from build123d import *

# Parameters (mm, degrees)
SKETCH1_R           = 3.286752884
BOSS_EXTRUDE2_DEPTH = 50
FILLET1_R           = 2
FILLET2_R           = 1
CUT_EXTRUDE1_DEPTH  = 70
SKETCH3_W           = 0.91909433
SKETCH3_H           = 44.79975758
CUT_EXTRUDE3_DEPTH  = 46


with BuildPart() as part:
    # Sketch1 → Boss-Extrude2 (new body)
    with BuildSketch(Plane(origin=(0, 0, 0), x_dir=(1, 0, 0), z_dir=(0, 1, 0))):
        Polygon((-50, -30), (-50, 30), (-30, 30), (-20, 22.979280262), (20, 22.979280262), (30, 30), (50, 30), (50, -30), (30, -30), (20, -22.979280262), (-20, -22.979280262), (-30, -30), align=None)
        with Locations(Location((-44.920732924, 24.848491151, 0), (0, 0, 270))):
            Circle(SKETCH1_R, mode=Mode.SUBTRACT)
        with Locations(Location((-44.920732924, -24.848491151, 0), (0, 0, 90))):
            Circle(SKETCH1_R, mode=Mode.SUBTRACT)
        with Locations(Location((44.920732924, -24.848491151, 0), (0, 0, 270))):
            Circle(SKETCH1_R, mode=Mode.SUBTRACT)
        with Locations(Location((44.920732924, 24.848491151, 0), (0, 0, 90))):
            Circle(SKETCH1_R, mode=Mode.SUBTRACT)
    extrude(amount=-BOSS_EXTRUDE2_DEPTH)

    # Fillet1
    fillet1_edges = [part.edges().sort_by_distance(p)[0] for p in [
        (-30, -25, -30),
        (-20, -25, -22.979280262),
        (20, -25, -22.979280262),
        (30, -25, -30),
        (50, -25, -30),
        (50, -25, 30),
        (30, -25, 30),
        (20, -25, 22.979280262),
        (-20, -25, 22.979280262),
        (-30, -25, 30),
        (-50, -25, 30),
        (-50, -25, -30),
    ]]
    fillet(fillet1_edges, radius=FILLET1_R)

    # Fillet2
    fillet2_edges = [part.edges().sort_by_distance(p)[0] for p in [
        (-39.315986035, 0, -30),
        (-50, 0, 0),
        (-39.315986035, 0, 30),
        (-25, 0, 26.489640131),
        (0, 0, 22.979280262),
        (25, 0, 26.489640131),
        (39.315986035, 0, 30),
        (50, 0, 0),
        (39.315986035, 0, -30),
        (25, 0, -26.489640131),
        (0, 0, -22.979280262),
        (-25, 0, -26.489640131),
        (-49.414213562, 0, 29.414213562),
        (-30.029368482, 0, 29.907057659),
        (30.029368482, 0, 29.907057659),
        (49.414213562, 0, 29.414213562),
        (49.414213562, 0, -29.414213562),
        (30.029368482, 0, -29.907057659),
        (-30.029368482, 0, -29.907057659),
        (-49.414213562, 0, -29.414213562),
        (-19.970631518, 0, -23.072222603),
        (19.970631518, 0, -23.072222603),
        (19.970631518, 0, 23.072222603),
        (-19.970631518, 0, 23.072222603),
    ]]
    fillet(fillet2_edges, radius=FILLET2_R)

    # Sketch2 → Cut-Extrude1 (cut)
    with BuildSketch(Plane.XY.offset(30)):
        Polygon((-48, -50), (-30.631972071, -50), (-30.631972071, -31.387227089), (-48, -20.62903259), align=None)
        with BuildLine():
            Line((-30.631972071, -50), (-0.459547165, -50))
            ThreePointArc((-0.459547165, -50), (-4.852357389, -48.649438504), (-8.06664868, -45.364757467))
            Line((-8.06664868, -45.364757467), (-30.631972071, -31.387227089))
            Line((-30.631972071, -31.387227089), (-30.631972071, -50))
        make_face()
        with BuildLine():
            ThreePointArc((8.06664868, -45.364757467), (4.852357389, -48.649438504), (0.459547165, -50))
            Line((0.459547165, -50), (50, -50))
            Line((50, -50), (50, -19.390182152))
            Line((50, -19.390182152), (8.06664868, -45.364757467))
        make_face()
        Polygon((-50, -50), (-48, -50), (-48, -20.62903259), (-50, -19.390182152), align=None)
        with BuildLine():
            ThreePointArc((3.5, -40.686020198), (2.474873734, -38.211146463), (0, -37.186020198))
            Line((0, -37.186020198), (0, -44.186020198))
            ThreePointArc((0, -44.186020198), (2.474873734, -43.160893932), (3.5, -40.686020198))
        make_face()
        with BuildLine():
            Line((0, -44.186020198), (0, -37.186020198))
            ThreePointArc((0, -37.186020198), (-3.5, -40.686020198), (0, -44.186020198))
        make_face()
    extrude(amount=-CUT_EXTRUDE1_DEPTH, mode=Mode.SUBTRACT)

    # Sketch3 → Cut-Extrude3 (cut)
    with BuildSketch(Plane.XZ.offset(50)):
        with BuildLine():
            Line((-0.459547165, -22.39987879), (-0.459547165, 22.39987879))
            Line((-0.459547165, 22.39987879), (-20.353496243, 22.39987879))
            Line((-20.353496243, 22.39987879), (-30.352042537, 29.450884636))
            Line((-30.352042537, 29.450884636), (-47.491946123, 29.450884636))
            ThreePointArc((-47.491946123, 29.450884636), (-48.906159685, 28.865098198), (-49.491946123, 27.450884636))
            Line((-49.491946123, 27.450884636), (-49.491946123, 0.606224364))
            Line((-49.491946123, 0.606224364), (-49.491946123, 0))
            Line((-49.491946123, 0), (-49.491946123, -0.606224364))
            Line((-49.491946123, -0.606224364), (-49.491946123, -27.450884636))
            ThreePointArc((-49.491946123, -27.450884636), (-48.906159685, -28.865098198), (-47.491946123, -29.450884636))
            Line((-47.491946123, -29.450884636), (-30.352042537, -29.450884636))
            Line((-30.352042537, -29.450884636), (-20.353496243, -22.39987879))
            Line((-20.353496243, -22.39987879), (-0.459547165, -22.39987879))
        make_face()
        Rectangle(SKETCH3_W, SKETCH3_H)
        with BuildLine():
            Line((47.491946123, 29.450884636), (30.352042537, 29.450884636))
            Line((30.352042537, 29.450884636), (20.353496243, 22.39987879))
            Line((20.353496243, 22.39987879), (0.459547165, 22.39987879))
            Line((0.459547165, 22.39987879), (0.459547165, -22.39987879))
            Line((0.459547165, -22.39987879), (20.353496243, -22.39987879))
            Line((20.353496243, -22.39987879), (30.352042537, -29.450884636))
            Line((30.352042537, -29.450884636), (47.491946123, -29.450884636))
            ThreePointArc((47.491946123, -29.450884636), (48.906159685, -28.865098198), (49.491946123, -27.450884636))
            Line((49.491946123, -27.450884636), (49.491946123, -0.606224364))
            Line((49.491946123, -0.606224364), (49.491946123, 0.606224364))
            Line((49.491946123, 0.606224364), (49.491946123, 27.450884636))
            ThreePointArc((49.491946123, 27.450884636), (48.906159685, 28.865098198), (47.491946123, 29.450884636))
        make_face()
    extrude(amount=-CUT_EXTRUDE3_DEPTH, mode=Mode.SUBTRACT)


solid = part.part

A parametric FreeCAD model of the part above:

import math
import FreeCAD as App
import Part
import Sketcher

V = App.Vector


def edges_at(feature, points):
    """Names of the edges that pass closest to the given points."""
    edges = feature.Shape.Edges
    near = lambda p: min(range(len(edges)), key=lambda i: edges[i].distToShape(Part.Vertex(*p))[0])
    return sorted({f"Edge{near(p) + 1}" for p in points})

doc = App.newDocument("Part")
body = doc.addObject("PartDesign::Body", "Body")

sketch1 = doc.addObject("Sketcher::SketchObject", "Sketch")
body.addObject(sketch1)
sketch1.AttachmentSupport = (doc.XZ_Plane, [""])
sketch1.MapMode = "FlatFace"
sketch1.addGeometry([
    Part.LineSegment(V(-50, -30, 0), V(-50, 30, 0)),
    Part.LineSegment(V(-50, 30, 0), V(-30, 30, 0)),
    Part.LineSegment(V(-30, 30, 0), V(-20, 23, 0)),
    Part.LineSegment(V(-20, 23, 0), V(20, 23, 0)),
    Part.LineSegment(V(20, 23, 0), V(30, 30, 0)),
    Part.LineSegment(V(30, 30, 0), V(50, 30, 0)),
    Part.LineSegment(V(50, 30, 0), V(50, -30, 0)),
    Part.LineSegment(V(50, -30, 0), V(30, -30, 0)),
    Part.LineSegment(V(30, -30, 0), V(20, -23, 0)),
    Part.LineSegment(V(20, -23, 0), V(-20, -23, 0)),
    Part.LineSegment(V(-20, -23, 0), V(-30, -30, 0)),
    Part.LineSegment(V(-30, -30, 0), V(-50, -30, 0)),
    Part.Circle(V(44.9, 24.8, 0), V(0, 0, 1), 3.3),
    Part.Circle(V(-44.9, 24.8, 0), V(0, 0, 1), 3.3),
    Part.Circle(V(44.9, -24.8, 0), V(0, 0, 1), 3.3),
    Part.Circle(V(-44.9, -24.8, 0), V(0, 0, 1), 3.3),
], False)
sketch1.addConstraint([
    Sketcher.Constraint("Coincident", 0, 2, 1, 1),
    Sketcher.Constraint("Coincident", 1, 2, 2, 1),
    Sketcher.Constraint("Coincident", 2, 2, 3, 1),
    Sketcher.Constraint("Coincident", 3, 2, 4, 1),
    Sketcher.Constraint("Coincident", 4, 2, 5, 1),
    Sketcher.Constraint("Coincident", 5, 2, 6, 1),
    Sketcher.Constraint("Coincident", 6, 2, 7, 1),
    Sketcher.Constraint("Coincident", 7, 2, 8, 1),
    Sketcher.Constraint("Coincident", 8, 2, 9, 1),
    Sketcher.Constraint("Coincident", 9, 2, 10, 1),
    Sketcher.Constraint("Coincident", 10, 2, 11, 1),
    Sketcher.Constraint("Coincident", 11, 2, 0, 1),
    Sketcher.Constraint("Vertical", 0),
    Sketcher.Constraint("Horizontal", 1),
    Sketcher.Constraint("Horizontal", 3),
    Sketcher.Constraint("Horizontal", 5),
    Sketcher.Constraint("Vertical", 6),
    Sketcher.Constraint("Horizontal", 7),
    Sketcher.Constraint("Horizontal", 9),
    Sketcher.Constraint("Horizontal", 11),
    Sketcher.Constraint("Equal", 12, 13),
    Sketcher.Constraint("Equal", 13, 14),
    Sketcher.Constraint("Equal", 14, 15),
    Sketcher.Constraint("Symmetric", 13, 3, 14, 3, -1, 1),
    Sketcher.Constraint("Symmetric", 12, 3, 15, 3, -1, 1),
    Sketcher.Constraint("Symmetric", 0, 2, 6, 2, -1, 1),
    Sketcher.Constraint("Symmetric", 2, 2, 8, 2, -1, 1),
    Sketcher.Constraint("Symmetric", 4, 2, 10, 2, -1, 1),
    Sketcher.Constraint("Symmetric", 12, 3, 13, 3, -2),
    Sketcher.Constraint("Symmetric", 1, 2, 4, 2, -2),
    Sketcher.Constraint("Parallel", 2, 8),
    Sketcher.Constraint("Parallel", 4, 10),
    Sketcher.Constraint("Vertical", 3, 2, 8, 2),
    Sketcher.Constraint("DistanceX", 1, 1, 1, 2, 20.0),
    Sketcher.Constraint("DistanceX", 3, 1, 3, 2, 40.0),
    Sketcher.Constraint("DistanceY", 0, 1, 0, 2, 60.0),
    Sketcher.Constraint("DistanceX", 0, 2, -1, 1, 50.0),
    Sketcher.Constraint("Diameter", 12, 6.573506),
    Sketcher.Constraint("Distance", 2, 12.218449),
    Sketcher.Constraint("DistanceY", -1, 1, 12, 3, 24.848491),
    Sketcher.Constraint("DistanceX", -1, 1, 12, 3, 44.920733),
])
pad1 = doc.addObject("PartDesign::Pad", "Pad")
body.addObject(pad1)
pad1.Profile = sketch1
pad1.Length = 50
doc.recompute()

fillet = doc.addObject("PartDesign::Fillet", "Fillet")
body.addObject(fillet)
fillet.Base = (pad1, edges_at(pad1, [
    (-30, -25, -30),
    (-20, -25, -22.979),
    (20, -25, -22.979),
    (30, -25, -30),
    (50, -25, -30),
    (50, -25, 30),
    (30, -25, 30),
    (20, -25, 22.979),
    (-20, -25, 22.979),
    (-30, -25, 30),
    (-50, -25, 30),
    (-50, -25, -30),
]))
fillet.Radius = 2
doc.recompute()

fillet2 = doc.addObject("PartDesign::Fillet", "Fillet001")
body.addObject(fillet2)
fillet2.Base = (fillet, edges_at(fillet, [
    (-39.316, 0, -30),
    (-50, 0, 0),
    (-39.316, 0, 30),
    (-25, 0, 26.49),
    (0, 0, 22.979),
    (25, 0, 26.49),
    (39.316, 0, 30),
    (50, 0, 0),
    (39.316, 0, -30),
    (25, 0, -26.49),
    (0, 0, -22.979),
    (-25, 0, -26.49),
    (-49.414, 0, 29.414),
    (-30.029, 0, 29.907),
    (30.029, 0, 29.907),
    (49.414, 0, 29.414),
    (49.414, 0, -29.414),
    (30.029, 0, -29.907),
    (-30.029, 0, -29.907),
    (-49.414, 0, -29.414),
    (-19.971, 0, -23.072),
    (19.971, 0, -23.072),
    (19.971, 0, 23.072),
    (-19.971, 0, 23.072),
]))
fillet2.Radius = 1

sketch2 = doc.addObject("Sketcher::SketchObject", "Sketch001")
body.addObject(sketch2)
sketch2.AttachmentSupport = (doc.XY_Plane, [""])
sketch2.MapMode = "FlatFace"
sketch2.AttachmentOffset = App.Placement(V(0, 0, 30), App.Rotation())
sketch2.addGeometry([
    Part.ArcOfCircle(Part.Circle(V(0, -40.7, 0), V(0, 0, 1), 9.3), math.radians(-150), math.radians(-93)),
    Part.LineSegment(V(-8.1, -45.4, 0), V(-30.6, -31.4, 0)),
    Part.LineSegment(V(-30.6, -31.4, 0), V(-48, -20.6, 0)),
    Part.LineSegment(V(-48, -20.6, 0), V(-50, -19.4, 0)),
    Part.LineSegment(V(-50, -19.4, 0), V(-50, -50, 0)),
    Part.LineSegment(V(-50, -50, 0), V(-0.5, -50, 0)),
    Part.ArcOfCircle(Part.Circle(V(0, -40.7, 0), V(0, 0, 1), 9.3), math.radians(-87), math.radians(-30)),
    Part.LineSegment(V(0.5, -50, 0), V(50, -50, 0)),
    Part.LineSegment(V(50, -50, 0), V(50, -19.4, 0)),
    Part.LineSegment(V(50, -19.4, 0), V(8.1, -45.4, 0)),
    Part.ArcOfCircle(Part.Circle(V(0, -40.7, 0), V(0, 0, 1), 3.5), math.radians(0), math.radians(90)),
    Part.ArcOfCircle(Part.Circle(V(0, -40.7, 0), V(0, 0, 1), 3.5), math.radians(90), math.radians(270)),
    Part.ArcOfCircle(Part.Circle(V(0, -40.7, 0), V(0, 0, 1), 3.5), math.radians(-90), math.radians(0)),
], False)
sketch2.addConstraint([
    Sketcher.Constraint("Coincident", 0, 1, 1, 1),
    Sketcher.Constraint("Coincident", 1, 2, 2, 1),
    Sketcher.Constraint("Coincident", 2, 2, 3, 1),
    Sketcher.Constraint("Coincident", 3, 2, 4, 1),
    Sketcher.Constraint("Coincident", 4, 2, 5, 1),
    Sketcher.Constraint("Coincident", 5, 2, 0, 2),
    Sketcher.Constraint("Coincident", 6, 1, 7, 1),
    Sketcher.Constraint("Coincident", 7, 2, 8, 1),
    Sketcher.Constraint("Coincident", 8, 2, 9, 1),
    Sketcher.Constraint("Coincident", 9, 2, 6, 2),
    Sketcher.Constraint("Tangent", 10, 2, 11, 1),
    Sketcher.Constraint("Tangent", 11, 2, 12, 1),
    Sketcher.Constraint("Tangent", 12, 2, 10, 1),
    Sketcher.Constraint("Vertical", 4),
    Sketcher.Constraint("Horizontal", 5),
    Sketcher.Constraint("Horizontal", 7),
    Sketcher.Constraint("Vertical", 8),
    Sketcher.Constraint("Coincident", 6, 3, 0, 3),
    Sketcher.Constraint("Coincident", 10, 3, 0, 3),
    Sketcher.Constraint("Equal", 0, 6),
    Sketcher.Constraint("Symmetric", 5, 2, 6, 1, -2),
    Sketcher.Constraint("Symmetric", 3, 2, 8, 2, -2),
    Sketcher.Constraint("PointOnObject", 10, 2, -2),
    Sketcher.Constraint("PointOnObject", 11, 2, -2),
    Sketcher.Constraint("Parallel", 1, 2),
    Sketcher.Constraint("Parallel", 2, 3),
    Sketcher.Constraint("Horizontal", 0, 1, 9, 2),
    Sketcher.Constraint("Horizontal", 11, 3, 12, 2),
    Sketcher.Constraint("Radius", 10, 3.5),
    Sketcher.Constraint("DistanceX", 2, 2, -1, 1, 48.0),
    Sketcher.Constraint("DistanceX", 3, 2, -1, 1, 50.0),
    Sketcher.Constraint("DistanceY", 4, 2, -1, 1, 50.0),
    Sketcher.Constraint("Radius", 0, 9.32531),
    Sketcher.Constraint("DistanceX", 0, 1, 5, 2, 7.607102),
    Sketcher.Constraint("DistanceX", 5, 1, 5, 2, 49.540453),
    Sketcher.Constraint("DistanceY", 4, 2, 4, 1, 30.609818),
    Sketcher.Constraint("DistanceY", 0, 1, 1, 2, 13.97753),
])
pocket1 = doc.addObject("PartDesign::Pocket", "Pocket")
body.addObject(pocket1)
pocket1.Profile = sketch2
pocket1.Length = 70

sketch3 = doc.addObject("Sketcher::SketchObject", "Sketch002")
body.addObject(sketch3)
sketch3.AttachmentSupport = (doc.XZ_Plane, [""])
sketch3.MapMode = "FlatFace"
sketch3.AttachmentOffset = App.Placement(V(0, 0, 50), App.Rotation())
sketch3.addGeometry([
    Part.LineSegment(V(-20.4, 22.4, 0), V(-30.4, 29.5, 0)),
    Part.LineSegment(V(-30.4, 29.5, 0), V(-47.5, 29.5, 0)),
    Part.ArcOfCircle(Part.Circle(V(-47.5, 27.5, 0), V(0, 0, 1), 2), math.radians(90), math.radians(180)),
    Part.LineSegment(V(-49.5, 27.5, 0), V(-49.5, -27.5, 0)),
    Part.ArcOfCircle(Part.Circle(V(-47.5, -27.5, 0), V(0, 0, 1), 2), math.radians(-180), math.radians(-90)),
    Part.LineSegment(V(-47.5, -29.5, 0), V(-30.4, -29.5, 0)),
    Part.LineSegment(V(-30.4, -29.5, 0), V(-20.4, -22.4, 0)),
    Part.LineSegment(V(-20.4, -22.4, 0), V(20.4, -22.4, 0)),
    Part.LineSegment(V(20.4, -22.4, 0), V(30.4, -29.5, 0)),
    Part.LineSegment(V(30.4, -29.5, 0), V(47.5, -29.5, 0)),
    Part.ArcOfCircle(Part.Circle(V(47.5, -27.5, 0), V(0, 0, 1), 2), math.radians(-90), math.radians(0)),
    Part.LineSegment(V(49.5, -27.5, 0), V(49.5, 27.5, 0)),
    Part.ArcOfCircle(Part.Circle(V(47.5, 27.5, 0), V(0, 0, 1), 2), math.radians(0), math.radians(90)),
    Part.LineSegment(V(47.5, 29.5, 0), V(30.4, 29.5, 0)),
    Part.LineSegment(V(30.4, 29.5, 0), V(20.4, 22.4, 0)),
    Part.LineSegment(V(20.4, 22.4, 0), V(-20.4, 22.4, 0)),
], False)
sketch3.addConstraint([
    Sketcher.Constraint("Coincident", 0, 2, 1, 1),
    Sketcher.Constraint("Tangent", 1, 2, 2, 1),
    Sketcher.Constraint("Tangent", 2, 2, 3, 1),
    Sketcher.Constraint("Tangent", 3, 2, 4, 1),
    Sketcher.Constraint("Tangent", 4, 2, 5, 1),
    Sketcher.Constraint("Coincident", 5, 2, 6, 1),
    Sketcher.Constraint("Coincident", 6, 2, 7, 1),
    Sketcher.Constraint("Coincident", 7, 2, 8, 1),
    Sketcher.Constraint("Coincident", 8, 2, 9, 1),
    Sketcher.Constraint("Tangent", 9, 2, 10, 1),
    Sketcher.Constraint("Tangent", 10, 2, 11, 1),
    Sketcher.Constraint("Tangent", 11, 2, 12, 1),
    Sketcher.Constraint("Tangent", 12, 2, 13, 1),
    Sketcher.Constraint("Coincident", 13, 2, 14, 1),
    Sketcher.Constraint("Coincident", 14, 2, 15, 1),
    Sketcher.Constraint("Coincident", 15, 2, 0, 1),
    Sketcher.Constraint("Horizontal", 1),
    Sketcher.Constraint("Vertical", 3),
    Sketcher.Constraint("Horizontal", 5),
    Sketcher.Constraint("Horizontal", 7),
    Sketcher.Constraint("Horizontal", 9),
    Sketcher.Constraint("Vertical", 11),
    Sketcher.Constraint("Horizontal", 13),
    Sketcher.Constraint("Horizontal", 15),
    Sketcher.Constraint("Equal", 2, 4),
    Sketcher.Constraint("Equal", 4, 10),
    Sketcher.Constraint("Equal", 10, 12),
    Sketcher.Constraint("Symmetric", 2, 3, 10, 3, -1, 1),
    Sketcher.Constraint("Symmetric", 5, 2, 13, 2, -1, 1),
    Sketcher.Constraint("Symmetric", 6, 2, 14, 2, -1, 1),
    Sketcher.Constraint("Symmetric", 5, 2, 8, 2, -2),
    Sketcher.Constraint("Parallel", 0, 8),
    Sketcher.Constraint("Vertical", 0, 2, 5, 2),
    Sketcher.Constraint("Vertical", 7, 2, 14, 2),
    Sketcher.Constraint("Radius", 2, 2.0),
    Sketcher.Constraint("DistanceY", 3, 2, 3, 1, 54.901769),
    Sketcher.Constraint("Distance", 0, 12.234689),
    Sketcher.Constraint("DistanceX", 1, 2, 1, 1, 17.139904),
    Sketcher.Constraint("DistanceX", 7, 1, 7, 2, 40.706992),
    Sketcher.Constraint("DistanceY", 6, 2, -1, 1, 22.399879),
])
pocket2 = doc.addObject("PartDesign::Pocket", "Pocket001")
body.addObject(pocket2)
pocket2.Profile = sketch3
pocket2.Length = 46

doc.recompute()
